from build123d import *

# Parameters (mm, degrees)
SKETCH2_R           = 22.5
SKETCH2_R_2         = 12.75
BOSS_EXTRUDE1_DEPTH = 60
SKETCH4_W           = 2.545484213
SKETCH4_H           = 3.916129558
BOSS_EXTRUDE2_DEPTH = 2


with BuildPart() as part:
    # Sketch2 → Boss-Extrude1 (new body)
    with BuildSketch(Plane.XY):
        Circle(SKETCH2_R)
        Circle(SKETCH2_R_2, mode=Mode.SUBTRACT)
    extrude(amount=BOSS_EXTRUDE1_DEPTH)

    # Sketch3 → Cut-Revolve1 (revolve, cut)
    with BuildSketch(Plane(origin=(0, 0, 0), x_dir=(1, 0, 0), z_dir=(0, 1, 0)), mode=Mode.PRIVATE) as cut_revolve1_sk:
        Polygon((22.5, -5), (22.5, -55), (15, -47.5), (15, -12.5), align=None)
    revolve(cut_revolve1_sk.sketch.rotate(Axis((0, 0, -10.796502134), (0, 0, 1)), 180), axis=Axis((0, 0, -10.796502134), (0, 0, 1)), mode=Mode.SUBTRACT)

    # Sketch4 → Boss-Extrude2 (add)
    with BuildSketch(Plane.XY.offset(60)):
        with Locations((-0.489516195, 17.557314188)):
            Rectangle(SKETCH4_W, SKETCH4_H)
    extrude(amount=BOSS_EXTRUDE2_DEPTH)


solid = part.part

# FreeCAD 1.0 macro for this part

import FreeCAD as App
import Part
import Sketcher
from FreeCAD import Vector


def add_polygon(sketch, points):
    """Adds a closed chain of lines whose ends are joined by coincident constraints."""
    first, n = sketch.GeometryCount, len(points)
    for a, b in zip(points, points[1:] + points[:1]):
        sketch.addGeometry(Part.LineSegment(App.Vector(*a, 0), App.Vector(*b, 0)), False)
    for i in range(n):
        sketch.addConstraint(Sketcher.Constraint("Coincident", first + i, 2, first + (i + 1) % n, 1))

doc = App.newDocument("Part")
params = doc.addObject("Spreadsheet::Sheet", "Params")
for row, (alias, value) in enumerate([
    ("sketch1_diameter", "45 mm"),
    ("sketch1_diameter2", "25.5 mm"),
    ("pad1_length", "60 mm"),
    ("sketch2_height", "50 mm"),
    ("sketch2_height2", "35 mm"),
    ("groove_angle", "360 deg"),
    ("pad2_length", "2 mm"),
], start=1):
    params.set(f"A{row}", alias)
    params.set(f"B{row}", "=" + value)
    params.setAlias(f"B{row}", alias)

body = doc.addObject("PartDesign::Body", "Body")

# Sketch on XY plane
sketch1 = body.newObject("Sketcher::SketchObject", "Sketch")
sketch1.AttachmentSupport = (doc.getObject("XY_Plane"), [""])
sketch1.MapMode = "FlatFace"
sketch1.addGeometry([
    Part.Circle(Vector(0, 0, 0), Vector(0, 0, 1), 22),
    Part.Circle(Vector(0, 0, 0), Vector(0, 0, 1), 13),
], False)
sketch1.addConstraint([
    Sketcher.Constraint("Coincident", 0, 3, -1, 1),
    Sketcher.Constraint("Coincident", 1, 3, -1, 1),
    Sketcher.Constraint("Diameter", 0, 45.0),
    Sketcher.Constraint("Diameter", 1, 25.5),
])
sketch1.setExpression("Constraints[2]", "Params.sketch1_diameter")
sketch1.setExpression("Constraints[3]", "Params.sketch1_diameter2")
pad1 = body.newObject("PartDesign::Pad", "Pad")
pad1.Profile = sketch1
pad1.setExpression("Length", "Params.pad1_length")

# Sketch on XZ plane
sketch2 = body.newObject("Sketcher::SketchObject", "Sketch001")
sketch2.AttachmentSupport = (doc.getObject("XZ_Plane"), [""])
sketch2.MapMode = "FlatFace"
add_polygon(sketch2, [(22, 55), (22, 5), (15, 12), (15, 48)])  # lines 0-3
sketch2.addConstraint([
    Sketcher.Constraint("Vertical", 0),
    Sketcher.Constraint("Vertical", 2),
    Sketcher.Constraint("Perpendicular", 1, 3),
    Sketcher.Constraint("Equal", 1, 3),
    Sketcher.Constraint("DistanceY", 0, 2, 0, 1, 50.0),
    Sketcher.Constraint("DistanceY", 2, 1, 2, 2, 35.0),
    Sketcher.Constraint("DistanceY", -1, 1, 0, 2, 5.0),
    Sketcher.Constraint("DistanceX", -1, 1, 1, 2, 15.0),
])
sketch2.setExpression("Constraints[8]", "Params.sketch2_height")
sketch2.setExpression("Constraints[9]", "Params.sketch2_height2")
groove = body.newObject("PartDesign::Groove", "Groove")
groove.Profile = sketch2
groove.ReferenceAxis = (sketch2, ["V_Axis"])
groove.setExpression("Angle", "Params.groove_angle")

# Sketch on XY plane
sketch3 = body.newObject("Sketcher::SketchObject", "Sketch002")
sketch3.AttachmentSupport = (doc.getObject("XY_Plane"), [""])
sketch3.MapMode = "FlatFace"
sketch3.AttachmentOffset = App.Placement(Vector(0, 0, 60), App.Rotation())
add_polygon(sketch3, [(-1.8, 19.5), (-1.8, 15.6), (0.8, 15.6), (0.8, 19.5)])  # lines 0-3
sketch3.addConstraint([
    Sketcher.Constraint("Vertical", 0),
    Sketcher.Constraint("Horizontal", 1),
    Sketcher.Constraint("Vertical", 2),
    Sketcher.Constraint("Horizontal", 3),
    Sketcher.Constraint("DistanceY", 0, 2, 0, 1, 3.91613),
    Sketcher.Constraint("DistanceX", 1, 1, 1, 2, 2.545484),
    Sketcher.Constraint("DistanceX", 0, 2, -1, 1, 1.762258),
    Sketcher.Constraint("DistanceY", -1, 1, 0, 2, 15.599249),
])
pad2 = body.newObject("PartDesign::Pad", "Pad001")
pad2.Profile = sketch3
pad2.setExpression("Length", "Params.pad2_length")

doc.recompute()
